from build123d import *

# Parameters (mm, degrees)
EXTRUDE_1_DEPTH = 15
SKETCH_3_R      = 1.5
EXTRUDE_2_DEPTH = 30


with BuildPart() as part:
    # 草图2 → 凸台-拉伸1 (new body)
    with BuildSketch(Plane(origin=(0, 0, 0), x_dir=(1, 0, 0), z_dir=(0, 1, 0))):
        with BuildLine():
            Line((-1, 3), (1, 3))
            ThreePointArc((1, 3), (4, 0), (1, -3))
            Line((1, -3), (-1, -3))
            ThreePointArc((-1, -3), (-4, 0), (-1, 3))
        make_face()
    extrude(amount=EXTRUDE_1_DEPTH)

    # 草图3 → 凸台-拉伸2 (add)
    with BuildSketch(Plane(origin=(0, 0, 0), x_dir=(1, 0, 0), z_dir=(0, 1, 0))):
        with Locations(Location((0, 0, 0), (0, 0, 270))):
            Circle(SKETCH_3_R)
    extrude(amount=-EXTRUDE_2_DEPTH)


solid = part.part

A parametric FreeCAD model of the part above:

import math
import FreeCAD as App
import Part
import Sketcher

V = App.Vector

doc = App.newDocument("Part")
body = doc.addObject("PartDesign::Body", "Body")

# Sketch on XZ plane
sketch1 = body.newObject("Sketcher::SketchObject", "Sketch")
sketch1.AttachmentSupport = (doc.getObject("XZ_Plane"), [""])
sketch1.MapMode = "FlatFace"
sketch1.addGeometry(Part.LineSegment(V(1, -3, 0), V(-1, -3, 0)), False)
sketch1.addGeometry(Part.ArcOfCircle(Part.Circle(V(-1, 0, 0), V(0, 0, 1), 3), math.radians(90), math.radians(270)), False)
sketch1.addGeometry(Part.LineSegment(V(-1, 3, 0), V(1, 3, 0)), False)
sketch1.addGeometry(Part.ArcOfCircle(Part.Circle(V(1, 0, 0), V(0, 0, 1), 3), math.radians(-90), math.radians(90)), False)
sketch1.addConstraint(Sketcher.Constraint("Tangent", 0, 2, 1, 2))
sketch1.addConstraint(Sketcher.Constraint("Tangent", 1, 1, 2, 1))
sketch1.addConstraint(Sketcher.Constraint("Tangent", 2, 2, 3, 2))
sketch1.addConstraint(Sketcher.Constraint("Tangent", 3, 1, 0, 1))
sketch1.addConstraint(Sketcher.Constraint("Horizontal", 0))
sketch1.addConstraint(Sketcher.Constraint("Horizontal", 2))
sketch1.addConstraint(Sketcher.Constraint("Symmetric", 1, 3, 3, 3, -1, 1))
sketch1.addConstraint(Sketcher.Constraint("Radius", 1, 3.0))
sketch1.addConstraint(Sketcher.Constraint("DistanceX", 0, 2, 0, 1, 2.0))
pad1 = body.newObject("PartDesign::Pad", "Pad")
pad1.Profile = sketch1
pad1.Length = 15
pad1.Reversed = True

# Sketch on XZ plane
sketch2 = body.newObject("Sketcher::SketchObject", "Sketch001")
sketch2.AttachmentSupport = (doc.getObject("XZ_Plane"), [""])
sketch2.MapMode = "FlatFace"
sketch2.addGeometry(Part.Circle(V(0, 0, 0), V(0, 0, 1), 1.5), False)
sketch2.addConstraint(Sketcher.Constraint("Coincident", 0, 3, -1, 1))
sketch2.addConstraint(Sketcher.Constraint("Diameter", 0, 3.0))
pad2 = body.newObject("PartDesign::Pad", "Pad001")
pad2.Profile = sketch2
pad2.Length = 30

doc.recompute()
